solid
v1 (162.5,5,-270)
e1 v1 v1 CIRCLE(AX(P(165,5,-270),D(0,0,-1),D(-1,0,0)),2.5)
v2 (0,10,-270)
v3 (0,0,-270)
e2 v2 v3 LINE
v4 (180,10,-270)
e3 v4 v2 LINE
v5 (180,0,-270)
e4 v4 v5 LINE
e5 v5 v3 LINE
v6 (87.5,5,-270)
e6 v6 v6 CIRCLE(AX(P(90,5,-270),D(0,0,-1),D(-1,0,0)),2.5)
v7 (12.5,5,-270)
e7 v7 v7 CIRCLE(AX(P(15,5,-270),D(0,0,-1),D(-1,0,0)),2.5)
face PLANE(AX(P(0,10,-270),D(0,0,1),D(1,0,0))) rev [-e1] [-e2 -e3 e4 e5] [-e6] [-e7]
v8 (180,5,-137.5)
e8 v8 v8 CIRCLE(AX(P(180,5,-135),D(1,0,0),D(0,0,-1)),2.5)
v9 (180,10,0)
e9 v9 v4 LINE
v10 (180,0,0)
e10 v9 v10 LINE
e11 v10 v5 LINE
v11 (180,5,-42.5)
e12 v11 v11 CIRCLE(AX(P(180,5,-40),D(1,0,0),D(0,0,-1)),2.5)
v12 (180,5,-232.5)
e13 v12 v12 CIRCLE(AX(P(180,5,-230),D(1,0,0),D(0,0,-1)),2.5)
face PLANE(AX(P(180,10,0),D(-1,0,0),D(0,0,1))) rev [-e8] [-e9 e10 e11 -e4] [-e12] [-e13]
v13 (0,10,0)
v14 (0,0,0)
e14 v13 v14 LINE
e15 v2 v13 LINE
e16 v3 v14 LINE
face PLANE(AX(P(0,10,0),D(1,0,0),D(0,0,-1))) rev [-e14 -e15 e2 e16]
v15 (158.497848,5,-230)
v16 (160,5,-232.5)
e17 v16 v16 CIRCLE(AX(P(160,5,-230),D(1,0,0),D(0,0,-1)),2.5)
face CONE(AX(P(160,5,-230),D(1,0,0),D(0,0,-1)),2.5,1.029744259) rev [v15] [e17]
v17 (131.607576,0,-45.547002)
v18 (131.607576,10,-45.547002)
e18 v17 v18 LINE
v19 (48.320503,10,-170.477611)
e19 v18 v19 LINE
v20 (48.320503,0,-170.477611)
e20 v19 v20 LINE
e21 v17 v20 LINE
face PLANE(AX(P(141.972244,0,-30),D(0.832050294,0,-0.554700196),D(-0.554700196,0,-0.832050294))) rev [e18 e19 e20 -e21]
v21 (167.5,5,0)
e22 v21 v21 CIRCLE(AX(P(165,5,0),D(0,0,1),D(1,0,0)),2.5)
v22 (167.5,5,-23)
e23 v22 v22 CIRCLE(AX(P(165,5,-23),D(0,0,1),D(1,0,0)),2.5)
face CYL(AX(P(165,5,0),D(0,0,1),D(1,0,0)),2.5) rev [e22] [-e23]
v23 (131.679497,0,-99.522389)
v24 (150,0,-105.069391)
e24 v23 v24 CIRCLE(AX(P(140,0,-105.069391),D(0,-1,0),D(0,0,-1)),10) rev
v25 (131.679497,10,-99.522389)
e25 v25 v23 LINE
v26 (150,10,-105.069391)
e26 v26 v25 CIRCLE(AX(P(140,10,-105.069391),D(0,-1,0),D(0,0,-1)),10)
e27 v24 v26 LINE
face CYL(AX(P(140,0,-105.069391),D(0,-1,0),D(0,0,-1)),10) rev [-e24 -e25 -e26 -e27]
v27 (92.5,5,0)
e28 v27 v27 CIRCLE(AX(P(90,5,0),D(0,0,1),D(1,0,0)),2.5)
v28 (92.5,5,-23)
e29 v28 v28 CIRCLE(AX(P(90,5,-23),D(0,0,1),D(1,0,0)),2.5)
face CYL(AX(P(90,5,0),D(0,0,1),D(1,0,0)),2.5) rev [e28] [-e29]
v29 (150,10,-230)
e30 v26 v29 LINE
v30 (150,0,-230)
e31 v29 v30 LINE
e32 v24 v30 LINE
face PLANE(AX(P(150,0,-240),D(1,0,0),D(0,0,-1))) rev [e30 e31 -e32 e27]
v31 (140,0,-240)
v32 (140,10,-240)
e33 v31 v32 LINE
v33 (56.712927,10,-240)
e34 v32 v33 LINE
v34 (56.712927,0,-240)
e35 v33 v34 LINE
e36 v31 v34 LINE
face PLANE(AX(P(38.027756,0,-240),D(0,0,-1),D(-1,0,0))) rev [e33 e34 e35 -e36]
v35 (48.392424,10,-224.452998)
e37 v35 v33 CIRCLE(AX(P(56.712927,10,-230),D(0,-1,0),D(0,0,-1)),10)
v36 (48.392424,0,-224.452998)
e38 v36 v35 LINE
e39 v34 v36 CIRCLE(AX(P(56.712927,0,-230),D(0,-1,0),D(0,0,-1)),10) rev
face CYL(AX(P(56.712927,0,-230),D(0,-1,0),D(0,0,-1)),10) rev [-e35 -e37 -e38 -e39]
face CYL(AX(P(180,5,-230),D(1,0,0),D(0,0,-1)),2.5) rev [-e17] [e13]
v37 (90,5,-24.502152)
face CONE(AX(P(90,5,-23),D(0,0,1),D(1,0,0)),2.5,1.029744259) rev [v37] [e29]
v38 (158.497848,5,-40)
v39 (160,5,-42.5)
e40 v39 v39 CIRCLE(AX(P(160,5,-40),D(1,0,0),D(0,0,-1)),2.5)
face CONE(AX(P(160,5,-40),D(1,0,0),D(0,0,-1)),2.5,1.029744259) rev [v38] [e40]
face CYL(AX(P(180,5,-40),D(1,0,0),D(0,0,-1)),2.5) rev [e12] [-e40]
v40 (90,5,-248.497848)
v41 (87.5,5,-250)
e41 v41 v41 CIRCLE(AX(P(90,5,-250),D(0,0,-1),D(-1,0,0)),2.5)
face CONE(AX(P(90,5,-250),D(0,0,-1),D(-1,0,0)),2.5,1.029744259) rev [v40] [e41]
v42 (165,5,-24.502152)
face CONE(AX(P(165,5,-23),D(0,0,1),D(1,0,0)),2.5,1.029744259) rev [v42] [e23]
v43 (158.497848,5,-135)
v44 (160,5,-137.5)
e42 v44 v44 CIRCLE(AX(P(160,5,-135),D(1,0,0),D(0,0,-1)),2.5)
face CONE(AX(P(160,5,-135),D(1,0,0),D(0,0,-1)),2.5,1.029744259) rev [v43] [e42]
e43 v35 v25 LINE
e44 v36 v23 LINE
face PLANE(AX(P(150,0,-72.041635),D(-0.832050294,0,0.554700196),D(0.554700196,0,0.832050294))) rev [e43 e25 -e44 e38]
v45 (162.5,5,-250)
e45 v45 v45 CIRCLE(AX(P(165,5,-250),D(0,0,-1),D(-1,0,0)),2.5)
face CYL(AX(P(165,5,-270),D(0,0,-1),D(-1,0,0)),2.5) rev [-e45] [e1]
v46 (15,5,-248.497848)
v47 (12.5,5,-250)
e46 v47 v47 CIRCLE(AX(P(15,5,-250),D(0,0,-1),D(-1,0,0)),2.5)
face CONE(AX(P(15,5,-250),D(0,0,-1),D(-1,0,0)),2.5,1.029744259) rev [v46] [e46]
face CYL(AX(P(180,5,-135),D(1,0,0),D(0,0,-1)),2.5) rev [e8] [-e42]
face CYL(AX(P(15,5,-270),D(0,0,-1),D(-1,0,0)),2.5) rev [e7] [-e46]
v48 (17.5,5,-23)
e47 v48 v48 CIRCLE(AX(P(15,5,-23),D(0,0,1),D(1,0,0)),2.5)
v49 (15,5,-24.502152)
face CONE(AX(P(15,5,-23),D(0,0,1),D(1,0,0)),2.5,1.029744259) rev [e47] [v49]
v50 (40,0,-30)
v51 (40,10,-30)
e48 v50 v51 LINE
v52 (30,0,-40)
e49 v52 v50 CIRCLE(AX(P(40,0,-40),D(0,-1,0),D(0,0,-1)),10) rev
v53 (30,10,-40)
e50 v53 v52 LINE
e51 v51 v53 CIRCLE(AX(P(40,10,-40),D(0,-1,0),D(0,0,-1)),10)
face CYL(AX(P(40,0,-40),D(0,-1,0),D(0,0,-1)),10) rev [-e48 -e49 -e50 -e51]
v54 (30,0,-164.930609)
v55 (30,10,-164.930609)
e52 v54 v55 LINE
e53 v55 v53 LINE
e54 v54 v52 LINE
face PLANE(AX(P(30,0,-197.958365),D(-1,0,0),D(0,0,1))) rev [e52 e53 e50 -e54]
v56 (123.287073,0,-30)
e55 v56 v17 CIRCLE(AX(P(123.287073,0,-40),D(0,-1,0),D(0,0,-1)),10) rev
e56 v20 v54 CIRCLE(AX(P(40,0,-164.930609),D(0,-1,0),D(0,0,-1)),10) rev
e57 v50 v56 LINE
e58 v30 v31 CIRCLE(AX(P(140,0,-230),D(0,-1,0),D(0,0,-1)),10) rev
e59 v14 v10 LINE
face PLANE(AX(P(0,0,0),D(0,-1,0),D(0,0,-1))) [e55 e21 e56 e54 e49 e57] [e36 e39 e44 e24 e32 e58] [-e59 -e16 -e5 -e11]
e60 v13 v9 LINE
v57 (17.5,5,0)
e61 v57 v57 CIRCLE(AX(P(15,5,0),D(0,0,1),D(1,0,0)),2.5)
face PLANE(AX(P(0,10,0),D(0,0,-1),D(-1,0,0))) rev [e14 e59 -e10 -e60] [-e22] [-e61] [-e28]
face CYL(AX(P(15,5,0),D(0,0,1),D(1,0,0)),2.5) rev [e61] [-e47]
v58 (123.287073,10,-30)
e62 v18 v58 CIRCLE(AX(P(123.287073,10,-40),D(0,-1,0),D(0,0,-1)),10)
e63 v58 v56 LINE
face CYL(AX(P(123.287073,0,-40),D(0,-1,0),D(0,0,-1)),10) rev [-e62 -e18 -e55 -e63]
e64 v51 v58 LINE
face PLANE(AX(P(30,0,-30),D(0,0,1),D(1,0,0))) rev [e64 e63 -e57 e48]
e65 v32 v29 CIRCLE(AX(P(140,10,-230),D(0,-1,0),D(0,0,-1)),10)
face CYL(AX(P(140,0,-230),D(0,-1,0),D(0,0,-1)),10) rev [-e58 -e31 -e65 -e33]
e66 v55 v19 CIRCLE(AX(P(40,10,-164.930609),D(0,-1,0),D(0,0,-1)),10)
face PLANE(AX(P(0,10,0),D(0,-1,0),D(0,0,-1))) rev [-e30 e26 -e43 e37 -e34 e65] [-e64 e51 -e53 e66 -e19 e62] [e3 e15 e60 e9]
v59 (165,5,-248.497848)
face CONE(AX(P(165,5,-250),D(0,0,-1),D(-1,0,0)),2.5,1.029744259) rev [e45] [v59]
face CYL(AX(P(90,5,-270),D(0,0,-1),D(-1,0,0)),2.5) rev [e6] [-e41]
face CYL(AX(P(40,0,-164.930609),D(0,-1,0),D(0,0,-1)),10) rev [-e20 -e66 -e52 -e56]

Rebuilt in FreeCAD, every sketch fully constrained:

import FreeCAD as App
import Part
import Sketcher

V = App.Vector


def edges_at(feature, points):
    """Names of the edges that pass closest to the given points."""
    edges = feature.Shape.Edges
    near = lambda p: min(range(len(edges)), key=lambda i: edges[i].distToShape(Part.Vertex(*p))[0])
    return sorted({f"Edge{near(p) + 1}" for p in points})

doc = App.newDocument("Part")
params = doc.addObject("Spreadsheet::Sheet", "Params")
for row, (alias, value) in enumerate([
    ("sketch1_width", "180 mm"),
    ("sketch1_height", "270 mm"),
    ("pad1_length", "10 mm"),
    ("fillet_radius", "10 mm"),
    ("sketch3_diameter", "5 mm"),
    ("hole_diameter", "5 mm"),
    ("hole_depth", "23 mm"),
    ("sketch4_diameter", "5 mm"),
    ("hole2_diameter", "5 mm"),
    ("hole2_depth", "20 mm"),
    ("sketch5_diameter", "5 mm"),
    ("hole3_diameter", "5 mm"),
    ("hole3_depth", "20 mm"),
], start=1):
    params.set(f"A{row}", alias)
    params.set(f"B{row}", "=" + value)
    params.setAlias(f"B{row}", alias)

body = doc.addObject("PartDesign::Body", "Body")

sketch1 = body.newObject("Sketcher::SketchObject", "Sketch")
sketch1.AttachmentSupport = (doc.getObject("XZ_Plane"), [""])
sketch1.MapMode = "FlatFace"
sketch1.addGeometry([
    Part.LineSegment(V(0, -270, 0), V(0, 0, 0)),
    Part.LineSegment(V(0, 0, 0), V(180, 0, 0)),
    Part.LineSegment(V(180, 0, 0), V(180, -270, 0)),
    Part.LineSegment(V(180, -270, 0), V(0, -270, 0)),
], False)
sketch1.addConstraint([
    Sketcher.Constraint("Coincident", 0, 2, 1, 1),
    Sketcher.Constraint("Coincident", 1, 2, 2, 1),
    Sketcher.Constraint("Coincident", 2, 2, 3, 1),
    Sketcher.Constraint("Coincident", 3, 2, 0, 1),
    Sketcher.Constraint("Vertical", 0),
    Sketcher.Constraint("Horizontal", 1),
    Sketcher.Constraint("Vertical", 2),
    Sketcher.Constraint("Horizontal", 3),
    Sketcher.Constraint("Coincident", 0, 2, -1, 1),
    Sketcher.Constraint("DistanceX", 1, 1, 1, 2, 180.0),
    Sketcher.Constraint("DistanceY", 0, 1, 0, 2, 270.0),
])
sketch1.setExpression("Constraints[9]", "Params.sketch1_width")
sketch1.setExpression("Constraints[10]", "Params.sketch1_height")
pad1 = body.newObject("PartDesign::Pad", "Pad")
pad1.Profile = sketch1
pad1.setExpression("Length", "Params.pad1_length")
pad1.Reversed = True

sketch2 = body.newObject("Sketcher::SketchObject", "Sketch001")
sketch2.AttachmentSupport = (doc.getObject("XZ_Plane"), [""])
sketch2.MapMode = "FlatFace"
sketch2.AttachmentOffset = App.Placement(V(0, 0, -10), App.Rotation())
sketch2.addGeometry([
    Part.LineSegment(V(150, -240, 0), V(38, -240, 0)),
    Part.LineSegment(V(38, -240, 0), V(150, -72, 0)),
    Part.LineSegment(V(150, -72, 0), V(150, -240, 0)),
    Part.LineSegment(V(30, -198, 0), V(30, -30, 0)),
    Part.LineSegment(V(30, -30, 0), V(142, -30, 0)),
    Part.LineSegment(V(142, -30, 0), V(30, -198, 0)),
], False)
sketch2.addConstraint([
    Sketcher.Constraint("Coincident", 0, 2, 1, 1),
    Sketcher.Constraint("Coincident", 1, 2, 2, 1),
    Sketcher.Constraint("Coincident", 2, 2, 0, 1),
    Sketcher.Constraint("Coincident", 3, 2, 4, 1),
    Sketcher.Constraint("Coincident", 4, 2, 5, 1),
    Sketcher.Constraint("Coincident", 5, 2, 3, 1),
    Sketcher.Constraint("Horizontal", 0),
    Sketcher.Constraint("Vertical", 2),
    Sketcher.Constraint("Vertical", 3),
    Sketcher.Constraint("Horizontal", 4),
    Sketcher.Constraint("Parallel", 1, 5),
    Sketcher.Constraint("Equal", 0, 4),
    Sketcher.Constraint("DistanceY", 0, 2, -1, 1, 240.0),
    Sketcher.Constraint("DistanceX", -1, 1, 1, 2, 150.0),
    Sketcher.Constraint("DistanceX", -1, 1, 3, 2, 30.0),
    Sketcher.Constraint("DistanceY", 3, 2, -1, 1, 30.0),
    Sketcher.Constraint("DistanceX", 0, 2, 0, 1, 111.972244),
    Sketcher.Constraint("DistanceY", 2, 2, 2, 1, 167.958365),
])
pocket1 = body.newObject("PartDesign::Pocket", "Pocket")
pocket1.Profile = sketch2
pocket1.Type = "ThroughAll"
pocket1.Reversed = True
doc.recompute()

fillet = body.newObject("PartDesign::Fillet", "Fillet")
fillet.Base = (pocket1, edges_at(pocket1, [
    (150, 5, -72.042),
    (38.028, 5, -240),
    (150, 5, -240),
    (30, 5, -197.958),
    (141.972, 5, -30),
    (30, 5, -30),
]))
fillet.setExpression("Radius", "Params.fillet_radius")

sketch3 = body.newObject("Sketcher::SketchObject", "Sketch002")
sketch3.AttachmentSupport = (doc.getObject("XY_Plane"), [""])
sketch3.MapMode = "FlatFace"
sketch3.addGeometry([
    Part.Circle(V(15, 5, 0), V(0, 0, 1), 2.5),
    Part.Circle(V(90, 5, 0), V(0, 0, 1), 2.5),
    Part.Circle(V(165, 5, 0), V(0, 0, 1), 2.5),
], False)
sketch3.addConstraint([
    Sketcher.Constraint("Equal", 0, 1),
    Sketcher.Constraint("Equal", 1, 2),
    Sketcher.Constraint("Horizontal", 0, 3, 1, 3),
    Sketcher.Constraint("Horizontal", 1, 3, 2, 3),
    Sketcher.Constraint("Diameter", 0, 5.0),
    Sketcher.Constraint("DistanceX", -1, 1, 0, 3, 15.0),
    Sketcher.Constraint("DistanceY", -1, 1, 0, 3, 5.0),
    Sketcher.Constraint("DistanceX", -1, 1, 1, 3, 90.0),
    Sketcher.Constraint("DistanceX", -1, 1, 2, 3, 165.0),
])
sketch3.setExpression("Constraints[4]", "Params.sketch3_diameter")
doc.recompute()
hole = body.newObject("PartDesign::Hole", "Hole")
hole.Profile = sketch3
hole.ThreadType = "None"
hole.setExpression("Diameter", "Params.hole_diameter")
hole.DepthType = "Dimension"
hole.setExpression("Depth", "Params.hole_depth")
hole.DrillPoint = "Angled"
hole.DrillPointAngle = 118

sketch4 = body.newObject("Sketcher::SketchObject", "Sketch003")
sketch4.AttachmentSupport = (doc.getObject("XY_Plane"), [""])
sketch4.MapMode = "FlatFace"
sketch4.AttachmentOffset = App.Placement(V(0, 0, -270), App.Rotation())
sketch4.addGeometry([
    Part.Circle(V(165, 5, 0), V(0, 0, 1), 2.5),
    Part.Circle(V(90, 5, 0), V(0, 0, 1), 2.5),
    Part.Circle(V(15, 5, 0), V(0, 0, 1), 2.5),
], False)
sketch4.addConstraint([
    Sketcher.Constraint("Equal", 0, 1),
    Sketcher.Constraint("Equal", 1, 2),
    Sketcher.Constraint("Horizontal", 0, 3, 1, 3),
    Sketcher.Constraint("Horizontal", 1, 3, 2, 3),
    Sketcher.Constraint("Diameter", 0, 5.0),
    Sketcher.Constraint("DistanceX", -1, 1, 0, 3, 165.0),
    Sketcher.Constraint("DistanceY", -1, 1, 0, 3, 5.0),
    Sketcher.Constraint("DistanceX", -1, 1, 1, 3, 90.0),
    Sketcher.Constraint("DistanceX", -1, 1, 2, 3, 15.0),
])
sketch4.setExpression("Constraints[4]", "Params.sketch4_diameter")
doc.recompute()
hole2 = body.newObject("PartDesign::Hole", "Hole001")
hole2.Profile = sketch4
hole2.ThreadType = "None"
hole2.setExpression("Diameter", "Params.hole2_diameter")
hole2.DepthType = "Dimension"
hole2.setExpression("Depth", "Params.hole2_depth")
hole2.DrillPoint = "Angled"
hole2.DrillPointAngle = 118
hole2.Reversed = True

sketch5 = body.newObject("Sketcher::SketchObject", "Sketch004")
sketch5.AttachmentSupport = (doc.getObject("YZ_Plane"), [""])
sketch5.MapMode = "FlatFace"
sketch5.AttachmentOffset = App.Placement(V(0, 0, 180), App.Rotation())
sketch5.addGeometry([
    Part.Circle(V(5, -40, 0), V(0, 0, 1), 2.5),
    Part.Circle(V(5, -135, 0), V(0, 0, 1), 2.5),
    Part.Circle(V(5, -230, 0), V(0, 0, 1), 2.5),
], False)
sketch5.addConstraint([
    Sketcher.Constraint("Equal", 0, 1),
    Sketcher.Constraint("Equal", 1, 2),
    Sketcher.Constraint("Vertical", 0, 3, 1, 3),
    Sketcher.Constraint("Vertical", 1, 3, 2, 3),
    Sketcher.Constraint("Diameter", 0, 5.0),
    Sketcher.Constraint("DistanceX", -1, 1, 0, 3, 5.0),
    Sketcher.Constraint("DistanceY", 0, 3, -1, 1, 40.0),
    Sketcher.Constraint("DistanceY", 1, 3, -1, 1, 135.0),
    Sketcher.Constraint("DistanceY", 2, 3, -1, 1, 230.0),
])
sketch5.setExpression("Constraints[4]", "Params.sketch5_diameter")
doc.recompute()
hole3 = body.newObject("PartDesign::Hole", "Hole002")
hole3.Profile = sketch5
hole3.ThreadType = "None"
hole3.setExpression("Diameter", "Params.hole3_diameter")
hole3.DepthType = "Dimension"
hole3.setExpression("Depth", "Params.hole3_depth")
hole3.DrillPoint = "Angled"
hole3.DrillPointAngle = 118

doc.recompute()
